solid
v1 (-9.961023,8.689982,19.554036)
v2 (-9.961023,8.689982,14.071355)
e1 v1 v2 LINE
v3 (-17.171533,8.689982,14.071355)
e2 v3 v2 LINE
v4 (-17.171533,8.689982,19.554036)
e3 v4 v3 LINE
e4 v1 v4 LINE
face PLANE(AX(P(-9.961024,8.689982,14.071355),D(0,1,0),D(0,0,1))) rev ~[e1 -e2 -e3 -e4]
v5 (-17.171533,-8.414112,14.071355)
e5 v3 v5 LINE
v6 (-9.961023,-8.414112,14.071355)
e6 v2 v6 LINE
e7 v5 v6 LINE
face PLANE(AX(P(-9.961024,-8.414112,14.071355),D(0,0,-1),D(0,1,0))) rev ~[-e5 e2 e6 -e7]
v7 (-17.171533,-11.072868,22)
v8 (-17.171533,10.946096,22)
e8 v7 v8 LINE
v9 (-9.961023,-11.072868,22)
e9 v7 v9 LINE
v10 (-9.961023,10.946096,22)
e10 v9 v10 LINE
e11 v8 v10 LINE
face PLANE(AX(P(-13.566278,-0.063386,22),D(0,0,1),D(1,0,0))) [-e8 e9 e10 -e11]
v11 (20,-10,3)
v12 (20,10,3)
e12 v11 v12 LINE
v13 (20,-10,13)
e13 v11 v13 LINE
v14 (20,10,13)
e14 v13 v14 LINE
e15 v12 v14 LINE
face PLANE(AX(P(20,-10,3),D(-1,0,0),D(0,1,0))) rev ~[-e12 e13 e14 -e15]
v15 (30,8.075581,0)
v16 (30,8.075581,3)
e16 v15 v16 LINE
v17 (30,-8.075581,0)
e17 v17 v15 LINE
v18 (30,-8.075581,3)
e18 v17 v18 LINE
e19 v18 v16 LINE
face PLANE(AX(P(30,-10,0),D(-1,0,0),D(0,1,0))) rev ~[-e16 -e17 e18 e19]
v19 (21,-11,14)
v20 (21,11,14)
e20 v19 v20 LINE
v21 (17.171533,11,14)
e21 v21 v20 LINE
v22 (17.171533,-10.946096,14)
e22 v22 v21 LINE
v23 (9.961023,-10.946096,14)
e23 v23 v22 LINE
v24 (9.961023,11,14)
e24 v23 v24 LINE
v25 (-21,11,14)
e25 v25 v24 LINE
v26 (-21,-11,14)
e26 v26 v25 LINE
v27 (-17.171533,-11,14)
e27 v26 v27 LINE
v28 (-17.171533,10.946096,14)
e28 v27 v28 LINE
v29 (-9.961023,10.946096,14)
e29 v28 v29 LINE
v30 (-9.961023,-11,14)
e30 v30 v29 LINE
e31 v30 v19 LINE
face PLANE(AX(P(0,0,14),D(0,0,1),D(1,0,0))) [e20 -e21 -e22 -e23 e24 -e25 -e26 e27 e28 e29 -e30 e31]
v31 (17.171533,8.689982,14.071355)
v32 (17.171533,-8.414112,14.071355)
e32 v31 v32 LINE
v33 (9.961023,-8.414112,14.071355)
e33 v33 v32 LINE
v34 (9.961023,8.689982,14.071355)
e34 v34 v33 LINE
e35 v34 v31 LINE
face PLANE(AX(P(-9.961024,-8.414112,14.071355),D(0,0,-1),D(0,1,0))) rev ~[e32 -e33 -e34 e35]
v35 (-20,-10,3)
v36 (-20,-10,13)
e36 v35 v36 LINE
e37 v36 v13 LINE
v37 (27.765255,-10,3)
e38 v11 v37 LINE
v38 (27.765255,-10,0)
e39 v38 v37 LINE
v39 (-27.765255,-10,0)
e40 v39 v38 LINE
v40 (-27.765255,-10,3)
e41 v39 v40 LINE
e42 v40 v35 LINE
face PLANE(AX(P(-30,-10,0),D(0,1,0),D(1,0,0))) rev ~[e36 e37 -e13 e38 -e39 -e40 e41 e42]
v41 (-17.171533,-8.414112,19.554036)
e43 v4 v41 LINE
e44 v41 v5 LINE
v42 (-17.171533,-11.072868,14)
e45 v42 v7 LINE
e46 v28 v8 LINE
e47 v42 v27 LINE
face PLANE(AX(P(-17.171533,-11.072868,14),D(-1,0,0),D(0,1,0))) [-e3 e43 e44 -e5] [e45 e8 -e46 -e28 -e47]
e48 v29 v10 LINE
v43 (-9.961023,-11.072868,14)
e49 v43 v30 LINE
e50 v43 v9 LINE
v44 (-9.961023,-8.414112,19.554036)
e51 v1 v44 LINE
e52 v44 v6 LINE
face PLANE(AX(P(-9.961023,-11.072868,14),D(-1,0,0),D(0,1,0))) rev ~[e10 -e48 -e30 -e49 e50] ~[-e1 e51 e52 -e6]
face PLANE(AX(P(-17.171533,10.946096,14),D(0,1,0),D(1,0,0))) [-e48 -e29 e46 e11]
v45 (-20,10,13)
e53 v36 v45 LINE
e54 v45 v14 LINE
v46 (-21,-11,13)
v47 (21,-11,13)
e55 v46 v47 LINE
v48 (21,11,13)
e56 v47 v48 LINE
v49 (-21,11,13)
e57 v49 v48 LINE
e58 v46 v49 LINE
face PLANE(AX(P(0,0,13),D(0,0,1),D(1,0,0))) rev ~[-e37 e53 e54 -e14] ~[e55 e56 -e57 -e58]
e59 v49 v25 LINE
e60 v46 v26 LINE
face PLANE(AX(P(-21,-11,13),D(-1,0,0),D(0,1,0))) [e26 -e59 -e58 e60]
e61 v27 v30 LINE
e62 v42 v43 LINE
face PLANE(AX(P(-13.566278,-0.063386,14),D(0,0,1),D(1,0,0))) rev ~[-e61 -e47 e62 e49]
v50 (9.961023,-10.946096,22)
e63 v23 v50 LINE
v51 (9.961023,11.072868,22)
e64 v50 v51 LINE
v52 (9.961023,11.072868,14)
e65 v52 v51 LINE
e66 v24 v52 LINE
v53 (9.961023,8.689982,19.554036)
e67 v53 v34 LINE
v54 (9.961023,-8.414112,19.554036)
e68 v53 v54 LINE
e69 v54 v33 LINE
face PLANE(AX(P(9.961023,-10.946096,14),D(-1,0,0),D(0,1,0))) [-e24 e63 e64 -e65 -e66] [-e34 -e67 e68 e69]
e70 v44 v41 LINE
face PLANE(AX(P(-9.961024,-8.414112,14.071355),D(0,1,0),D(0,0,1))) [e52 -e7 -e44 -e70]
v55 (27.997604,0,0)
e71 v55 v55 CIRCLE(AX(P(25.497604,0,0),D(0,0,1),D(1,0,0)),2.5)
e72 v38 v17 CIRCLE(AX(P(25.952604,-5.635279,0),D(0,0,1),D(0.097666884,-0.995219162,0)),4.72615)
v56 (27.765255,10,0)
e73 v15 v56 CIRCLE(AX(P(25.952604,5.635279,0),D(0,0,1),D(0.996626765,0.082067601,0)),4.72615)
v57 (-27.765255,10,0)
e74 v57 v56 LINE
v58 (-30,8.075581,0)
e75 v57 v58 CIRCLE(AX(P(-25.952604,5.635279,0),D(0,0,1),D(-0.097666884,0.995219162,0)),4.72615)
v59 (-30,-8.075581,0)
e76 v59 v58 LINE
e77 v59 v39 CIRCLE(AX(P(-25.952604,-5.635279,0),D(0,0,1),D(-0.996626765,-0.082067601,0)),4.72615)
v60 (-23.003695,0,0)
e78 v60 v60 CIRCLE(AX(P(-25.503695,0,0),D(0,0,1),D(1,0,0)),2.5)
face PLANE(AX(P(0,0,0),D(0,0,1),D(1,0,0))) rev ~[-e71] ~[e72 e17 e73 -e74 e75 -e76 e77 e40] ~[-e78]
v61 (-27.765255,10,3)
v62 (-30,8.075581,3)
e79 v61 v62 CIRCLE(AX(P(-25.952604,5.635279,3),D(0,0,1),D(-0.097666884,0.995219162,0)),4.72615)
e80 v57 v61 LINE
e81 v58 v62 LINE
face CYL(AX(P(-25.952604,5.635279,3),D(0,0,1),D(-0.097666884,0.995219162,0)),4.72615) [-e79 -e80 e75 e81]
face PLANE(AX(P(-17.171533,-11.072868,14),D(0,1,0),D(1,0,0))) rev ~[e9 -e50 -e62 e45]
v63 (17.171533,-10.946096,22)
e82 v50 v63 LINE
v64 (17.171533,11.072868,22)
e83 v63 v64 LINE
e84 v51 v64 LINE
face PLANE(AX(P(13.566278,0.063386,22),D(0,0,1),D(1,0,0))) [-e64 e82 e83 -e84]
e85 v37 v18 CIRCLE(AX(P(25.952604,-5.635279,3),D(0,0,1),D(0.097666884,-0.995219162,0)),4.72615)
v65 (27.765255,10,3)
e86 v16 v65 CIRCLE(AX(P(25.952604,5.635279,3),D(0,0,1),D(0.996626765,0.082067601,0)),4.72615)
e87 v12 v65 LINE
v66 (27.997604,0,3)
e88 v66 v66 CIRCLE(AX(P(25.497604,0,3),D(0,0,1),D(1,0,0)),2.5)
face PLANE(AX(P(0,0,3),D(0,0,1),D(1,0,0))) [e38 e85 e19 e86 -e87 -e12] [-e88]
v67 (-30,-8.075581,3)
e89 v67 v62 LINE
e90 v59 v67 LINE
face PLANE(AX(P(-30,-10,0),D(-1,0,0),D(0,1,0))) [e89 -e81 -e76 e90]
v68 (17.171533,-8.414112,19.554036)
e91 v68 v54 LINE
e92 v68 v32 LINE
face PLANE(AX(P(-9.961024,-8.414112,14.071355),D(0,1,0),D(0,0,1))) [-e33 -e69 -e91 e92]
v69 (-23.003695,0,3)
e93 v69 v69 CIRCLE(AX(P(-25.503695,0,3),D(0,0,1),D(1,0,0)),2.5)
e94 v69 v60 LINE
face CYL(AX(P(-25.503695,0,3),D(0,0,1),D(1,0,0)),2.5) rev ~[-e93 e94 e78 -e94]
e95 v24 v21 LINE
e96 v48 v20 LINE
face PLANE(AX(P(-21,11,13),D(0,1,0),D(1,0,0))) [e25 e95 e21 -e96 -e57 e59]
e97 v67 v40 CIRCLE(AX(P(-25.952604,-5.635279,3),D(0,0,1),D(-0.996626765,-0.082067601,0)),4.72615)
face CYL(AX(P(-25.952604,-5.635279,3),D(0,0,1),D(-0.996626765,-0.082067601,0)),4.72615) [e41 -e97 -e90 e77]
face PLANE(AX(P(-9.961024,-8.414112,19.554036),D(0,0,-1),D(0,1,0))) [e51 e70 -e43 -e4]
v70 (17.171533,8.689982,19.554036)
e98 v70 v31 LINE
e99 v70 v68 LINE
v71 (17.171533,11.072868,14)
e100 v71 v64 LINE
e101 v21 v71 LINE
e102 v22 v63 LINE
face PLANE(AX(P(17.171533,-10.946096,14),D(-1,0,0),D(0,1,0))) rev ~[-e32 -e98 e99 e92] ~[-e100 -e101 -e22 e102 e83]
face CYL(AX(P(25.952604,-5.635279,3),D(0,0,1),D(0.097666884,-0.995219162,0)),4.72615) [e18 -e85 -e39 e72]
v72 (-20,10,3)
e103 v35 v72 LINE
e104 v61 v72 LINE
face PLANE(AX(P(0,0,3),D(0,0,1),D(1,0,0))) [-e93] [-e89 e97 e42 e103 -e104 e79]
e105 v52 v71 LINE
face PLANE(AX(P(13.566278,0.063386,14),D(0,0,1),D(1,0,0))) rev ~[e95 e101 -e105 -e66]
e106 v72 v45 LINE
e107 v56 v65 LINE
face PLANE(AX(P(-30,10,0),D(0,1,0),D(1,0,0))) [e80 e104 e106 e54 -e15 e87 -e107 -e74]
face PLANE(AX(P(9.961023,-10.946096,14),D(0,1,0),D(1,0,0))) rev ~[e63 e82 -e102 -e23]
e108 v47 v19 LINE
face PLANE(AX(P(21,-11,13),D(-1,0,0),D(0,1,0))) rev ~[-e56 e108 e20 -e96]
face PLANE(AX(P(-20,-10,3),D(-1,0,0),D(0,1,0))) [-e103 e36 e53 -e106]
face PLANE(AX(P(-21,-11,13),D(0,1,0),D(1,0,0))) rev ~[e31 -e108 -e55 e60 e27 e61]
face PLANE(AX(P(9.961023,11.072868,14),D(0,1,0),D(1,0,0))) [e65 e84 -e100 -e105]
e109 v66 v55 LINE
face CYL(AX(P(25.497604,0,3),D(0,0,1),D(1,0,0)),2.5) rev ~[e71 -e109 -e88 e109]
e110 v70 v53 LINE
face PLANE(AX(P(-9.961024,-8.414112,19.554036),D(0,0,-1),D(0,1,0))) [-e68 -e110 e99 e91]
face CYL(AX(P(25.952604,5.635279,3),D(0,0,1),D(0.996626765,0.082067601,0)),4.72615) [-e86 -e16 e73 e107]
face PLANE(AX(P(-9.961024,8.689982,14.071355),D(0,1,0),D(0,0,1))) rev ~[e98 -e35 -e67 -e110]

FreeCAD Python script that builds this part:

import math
import FreeCAD as App
import Part
import Sketcher

V = App.Vector
Q = App.Units.Quantity

doc = App.newDocument("Part")
body = doc.addObject("PartDesign::Body", "Body")

# Sketch on XY plane
sketch1 = body.newObject("Sketcher::SketchObject", "Sketch")
sketch1.AttachmentSupport = (doc.getObject("XY_Plane"), [""])
sketch1.MapMode = "FlatFace"
sketch1.addGeometry([
    Part.LineSegment(V(-30, 10, 0), V(-30, -10, 0)),
    Part.LineSegment(V(-30, -10, 0), V(30, -10, 0)),
    Part.LineSegment(V(30, -10, 0), V(30, 10, 0)),
    Part.LineSegment(V(30, 10, 0), V(-30, 10, 0)),
], False)
sketch1.addConstraint([
    Sketcher.Constraint("Coincident", 0, 2, 1, 1),
    Sketcher.Constraint("Coincident", 1, 2, 2, 1),
    Sketcher.Constraint("Coincident", 2, 2, 3, 1),
    Sketcher.Constraint("Coincident", 3, 2, 0, 1),
    Sketcher.Constraint("Vertical", 0),
    Sketcher.Constraint("Horizontal", 1),
    Sketcher.Constraint("Vertical", 2),
    Sketcher.Constraint("Horizontal", 3),
    Sketcher.Constraint("Symmetric", 0, 2, 2, 2, -1, 1),
    Sketcher.Constraint("DistanceX", 1, 1, 1, 2, Q("60 mm")),
    Sketcher.Constraint("DistanceY", 0, 2, 0, 1, Q("20 mm")),
])
pad1 = body.newObject("PartDesign::Pad", "Pad")
pad1.Profile = sketch1
pad1.Length = 3

# Sketch on XY plane
sketch2 = body.newObject("Sketcher::SketchObject", "Sketch001")
sketch2.AttachmentSupport = (doc.getObject("XY_Plane"), [""])
sketch2.MapMode = "FlatFace"
sketch2.AttachmentOffset = App.Placement(V(0, 0, 3), App.Rotation())
sketch2.addGeometry([
    Part.LineSegment(V(-20, 10, 0), V(-20, -10, 0)),
    Part.LineSegment(V(-20, -10, 0), V(20, -10, 0)),
    Part.LineSegment(V(20, -10, 0), V(20, 10, 0)),
    Part.LineSegment(V(20, 10, 0), V(-20, 10, 0)),
], False)
sketch2.addConstraint([
    Sketcher.Constraint("Coincident", 0, 2, 1, 1),
    Sketcher.Constraint("Coincident", 1, 2, 2, 1),
    Sketcher.Constraint("Coincident", 2, 2, 3, 1),
    Sketcher.Constraint("Coincident", 3, 2, 0, 1),
    Sketcher.Constraint("Vertical", 0),
    Sketcher.Constraint("Horizontal", 1),
    Sketcher.Constraint("Vertical", 2),
    Sketcher.Constraint("Horizontal", 3),
    Sketcher.Constraint("Symmetric", 0, 2, 2, 2, -1, 1),
    Sketcher.Constraint("DistanceX", 1, 1, 1, 2, Q("40 mm")),
    Sketcher.Constraint("DistanceY", 0, 2, 0, 1, Q("20 mm")),
])
pad2 = body.newObject("PartDesign::Pad", "Pad001")
pad2.Profile = sketch2
pad2.Length = 10

# Sketch on XY plane
sketch3 = body.newObject("Sketcher::SketchObject", "Sketch002")
sketch3.AttachmentSupport = (doc.getObject("XY_Plane"), [""])
sketch3.MapMode = "FlatFace"
sketch3.AttachmentOffset = App.Placement(V(0, 0, 13), App.Rotation())
sketch3.addGeometry([
    Part.LineSegment(V(-21, 11, 0), V(-21, -11, 0)),
    Part.LineSegment(V(-21, -11, 0), V(21, -11, 0)),
    Part.LineSegment(V(21, -11, 0), V(21, 11, 0)),
    Part.LineSegment(V(21, 11, 0), V(-21, 11, 0)),
], False)
sketch3.addConstraint([
    Sketcher.Constraint("Coincident", 0, 2, 1, 1),
    Sketcher.Constraint("Coincident", 1, 2, 2, 1),
    Sketcher.Constraint("Coincident", 2, 2, 3, 1),
    Sketcher.Constraint("Coincident", 3, 2, 0, 1),
    Sketcher.Constraint("Vertical", 0),
    Sketcher.Constraint("Horizontal", 1),
    Sketcher.Constraint("Vertical", 2),
    Sketcher.Constraint("Horizontal", 3),
    Sketcher.Constraint("Symmetric", 0, 2, 2, 2, -1, 1),
    Sketcher.Constraint("DistanceX", 1, 1, 1, 2, Q("42 mm")),
    Sketcher.Constraint("DistanceY", 0, 2, 0, 1, Q("22 mm")),
])
pad3 = body.newObject("PartDesign::Pad", "Pad002")
pad3.Profile = sketch3
pad3.Length = 1

# Sketch on XY plane
sketch4 = body.newObject("Sketcher::SketchObject", "Sketch003")
sketch4.AttachmentSupport = (doc.getObject("XY_Plane"), [""])
sketch4.MapMode = "FlatFace"
sketch4.AttachmentOffset = App.Placement(V(0, 0, 14), App.Rotation())
sketch4.addGeometry([
    Part.LineSegment(V(-17, 11, 0), V(-17, -11, 0)),  # 0
    Part.LineSegment(V(-17, -11, 0), V(-10, -11, 0)),  # 1
    Part.LineSegment(V(-10, -11, 0), V(-10, 11, 0)),  # 2
    Part.LineSegment(V(-10, 11, 0), V(-17, 11, 0)),  # 3
    Part.LineSegment(V(10, 11, 0), V(10, -11, 0)),  # 4
    Part.LineSegment(V(10, -11, 0), V(17, -11, 0)),  # 5
    Part.LineSegment(V(17, -11, 0), V(17, 11, 0)),  # 6
    Part.LineSegment(V(17, 11, 0), V(10, 11, 0)),  # 7
], False)
sketch4.addConstraint([
    Sketcher.Constraint("Coincident", 0, 2, 1, 1),
    Sketcher.Constraint("Coincident", 1, 2, 2, 1),
    Sketcher.Constraint("Coincident", 2, 2, 3, 1),
    Sketcher.Constraint("Coincident", 3, 2, 0, 1),
    Sketcher.Constraint("Coincident", 4, 2, 5, 1),
    Sketcher.Constraint("Coincident", 5, 2, 6, 1),
    Sketcher.Constraint("Coincident", 6, 2, 7, 1),
    Sketcher.Constraint("Coincident", 7, 2, 4, 1),
    Sketcher.Constraint("Vertical", 0),
    Sketcher.Constraint("Horizontal", 1),
    Sketcher.Constraint("Vertical", 2),
    Sketcher.Constraint("Horizontal", 3),
    Sketcher.Constraint("Vertical", 4),
    Sketcher.Constraint("Horizontal", 5),
    Sketcher.Constraint("Vertical", 6),
    Sketcher.Constraint("Horizontal", 7),
    Sketcher.Constraint("Symmetric", 2, 2, 4, 2, -1, 1),
    Sketcher.Constraint("Symmetric", 0, 2, 6, 2, -1, 1),
    Sketcher.Constraint("DistanceX", 1, 1, 1, 2, Q("7.210509 mm")),
    Sketcher.Constraint("DistanceY", 0, 2, 0, 1, Q("22.018964 mm")),
    Sketcher.Constraint("DistanceY", 1, 2, 4, 2, Q("0.126772 mm")),
    Sketcher.Constraint("DistanceX", 0, 2, -1, 1, Q("17.171533 mm")),
])
pad4 = body.newObject("PartDesign::Pad", "Pad003")
pad4.Profile = sketch4
pad4.Length = 8

# Sketch on YZ plane
sketch5 = body.newObject("Sketcher::SketchObject", "Sketch004")
sketch5.AttachmentSupport = (doc.getObject("YZ_Plane"), [""])
sketch5.MapMode = "FlatFace"
sketch5.AttachmentOffset = App.Placement(V(0, 0, -9.961024), App.Rotation())
sketch5.addGeometry([
    Part.LineSegment(V(-8, 20, 0), V(-8, 14, 0)),
    Part.LineSegment(V(-8, 14, 0), V(9, 14, 0)),
    Part.LineSegment(V(9, 14, 0), V(9, 20, 0)),
    Part.LineSegment(V(9, 20, 0), V(-8, 20, 0)),
], False)
sketch5.addConstraint([
    Sketcher.Constraint("Coincident", 0, 2, 1, 1),
    Sketcher.Constraint("Coincident", 1, 2, 2, 1),
    Sketcher.Constraint("Coincident", 2, 2, 3, 1),
    Sketcher.Constraint("Coincident", 3, 2, 0, 1),
    Sketcher.Constraint("Vertical", 0),
    Sketcher.Constraint("Horizontal", 1),
    Sketcher.Constraint("Vertical", 2),
    Sketcher.Constraint("Horizontal", 3),
    Sketcher.Constraint("DistanceY", 0, 2, 0, 1, Q("5.482681 mm")),
    Sketcher.Constraint("DistanceX", 1, 1, 1, 2, Q("17.104093 mm")),
    Sketcher.Constraint("DistanceX", 0, 2, -1, 1, Q("8.414112 mm")),
    Sketcher.Constraint("DistanceY", -1, 1, 0, 2, Q("14.071355 mm")),
])
pocket1 = body.newObject("PartDesign::Pocket", "Pocket")
pocket1.Profile = sketch5
pocket1.Length = 80
pocket1.Midplane = True

# Sketch on XY plane
sketch6 = body.newObject("Sketcher::SketchObject", "Sketch005")
sketch6.AttachmentSupport = (doc.getObject("XY_Plane"), [""])
sketch6.MapMode = "FlatFace"
sketch6.AttachmentOffset = App.Placement(V(0, 0, 3), App.Rotation())
sketch6.addGeometry([
    Part.ArcOfCircle(Part.Circle(V(-26, 5.6, 0), V(0, 0, 1), 4.7), math.radians(96), math.radians(175)),  # 0
    Part.LineSegment(V(-26.4, 10.3, 0), V(-30.7, 10.3, 0)),  # 1
    Part.LineSegment(V(-30.7, 10.3, 0), V(-30.7, 6, 0)),  # 2
    Part.ArcOfCircle(Part.Circle(V(-26, -5.6, 0), V(0, 0, 1), 4.7), math.radians(-175), math.radians(-96)),  # 3
    Part.LineSegment(V(-30.7, -6, 0), V(-30.7, -10.3, 0)),  # 4
    Part.LineSegment(V(-30.7, -10.3, 0), V(-26.4, -10.3, 0)),  # 5
    Part.ArcOfCircle(Part.Circle(V(26, 5.6, 0), V(0, 0, 1), 4.7), math.radians(5), math.radians(84)),  # 6
    Part.LineSegment(V(30.7, 6, 0), V(30.7, 10.3, 0)),  # 7
    Part.LineSegment(V(30.7, 10.3, 0), V(26.4, 10.3, 0)),  # 8
    Part.ArcOfCircle(Part.Circle(V(26, -5.6, 0), V(0, 0, 1), 4.7), math.radians(-84), math.radians(-5)),  # 9
    Part.LineSegment(V(26.4, -10.3, 0), V(30.7, -10.3, 0)),  # 10
    Part.LineSegment(V(30.7, -10.3, 0), V(30.7, -6, 0)),  # 11
], False)
sketch6.addConstraint([
    Sketcher.Constraint("Coincident", 0, 1, 1, 1),
    Sketcher.Constraint("Coincident", 1, 2, 2, 1),
    Sketcher.Constraint("Coincident", 2, 2, 0, 2),
    Sketcher.Constraint("Coincident", 3, 1, 4, 1),
    Sketcher.Constraint("Coincident", 4, 2, 5, 1),
    Sketcher.Constraint("Coincident", 5, 2, 3, 2),
    Sketcher.Constraint("Coincident", 6, 1, 7, 1),
    Sketcher.Constraint("Coincident", 7, 2, 8, 1),
    Sketcher.Constraint("Coincident", 8, 2, 6, 2),
    Sketcher.Constraint("Coincident", 9, 1, 10, 1),
    Sketcher.Constraint("Coincident", 10, 2, 11, 1),
    Sketcher.Constraint("Coincident", 11, 2, 9, 2),
    Sketcher.Constraint("Vertical", 2),
    Sketcher.Constraint("Vertical", 4),
    Sketcher.Constraint("Vertical", 7),
    Sketcher.Constraint("Vertical", 11),
    Sketcher.Constraint("Equal", 0, 3),
    Sketcher.Constraint("Equal", 3, 6),
    Sketcher.Constraint("Equal", 6, 9),
    Sketcher.Constraint("Symmetric", 3, 3, 6, 3, -1, 1),
    Sketcher.Constraint("Symmetric", 0, 3, 9, 3, -1, 1),
    Sketcher.Constraint("Symmetric", 4, 2, 7, 2, -1, 1),
    Sketcher.Constraint("Symmetric", 1, 2, 10, 2, -1, 1),
    Sketcher.Constraint("Symmetric", 0, 3, 6, 3, -2),
    Sketcher.Constraint("Symmetric", 1, 2, 7, 2, -2),
    Sketcher.Constraint("Parallel", 5, 8),
    Sketcher.Constraint("Parallel", 1, 10),
    Sketcher.Constraint("Horizontal", 0, 1, 8, 2),
    Sketcher.Constraint("Radius", 0, Q("4.72615 mm")),
    Sketcher.Constraint("DistanceY", 2, 2, 2, 1, Q("4.275748 mm")),
    Sketcher.Constraint("DistanceY", -1, 1, 0, 3, Q("5.635279 mm")),
    Sketcher.Constraint("DistanceX", 0, 1, -1, 1, Q("26.414192 mm")),
    Sketcher.Constraint("DistanceX", 1, 2, -1, 1, Q("30.662811 mm")),
    Sketcher.Constraint("DistanceY", -1, 1, 1, 2, Q("10.298891 mm")),
])
pocket2 = body.newObject("PartDesign::Pocket", "Pocket001")
pocket2.Profile = sketch6
pocket2.Length = 5

# Sketch on XY plane
sketch7 = body.newObject("Sketcher::SketchObject", "Sketch006")
sketch7.AttachmentSupport = (doc.getObject("XY_Plane"), [""])
sketch7.MapMode = "FlatFace"
sketch7.AttachmentOffset = App.Placement(V(0, 0, 3), App.Rotation())
sketch7.addGeometry([
    Part.Circle(V(-25.5, 0, 0), V(0, 0, 1), 2.5),
    Part.Circle(V(25.5, 0, 0), V(0, 0, 1), 2.5),
], False)
sketch7.addConstraint([
    Sketcher.Constraint("Equal", 0, 1),
    Sketcher.Constraint("PointOnObject", 0, 3, -1),
    Sketcher.Constraint("PointOnObject", 1, 3, -1),
    Sketcher.Constraint("Diameter", 0, Q("5 mm")),
    Sketcher.Constraint("DistanceX", 0, 3, 1, 3, Q("51.001299 mm")),
    Sketcher.Constraint("DistanceX", 0, 3, -1, 1, Q("25.503695 mm")),
])
pocket3 = body.newObject("PartDesign::Pocket", "Pocket002")
pocket3.Profile = sketch7
pocket3.Length = 5

doc.recompute()
